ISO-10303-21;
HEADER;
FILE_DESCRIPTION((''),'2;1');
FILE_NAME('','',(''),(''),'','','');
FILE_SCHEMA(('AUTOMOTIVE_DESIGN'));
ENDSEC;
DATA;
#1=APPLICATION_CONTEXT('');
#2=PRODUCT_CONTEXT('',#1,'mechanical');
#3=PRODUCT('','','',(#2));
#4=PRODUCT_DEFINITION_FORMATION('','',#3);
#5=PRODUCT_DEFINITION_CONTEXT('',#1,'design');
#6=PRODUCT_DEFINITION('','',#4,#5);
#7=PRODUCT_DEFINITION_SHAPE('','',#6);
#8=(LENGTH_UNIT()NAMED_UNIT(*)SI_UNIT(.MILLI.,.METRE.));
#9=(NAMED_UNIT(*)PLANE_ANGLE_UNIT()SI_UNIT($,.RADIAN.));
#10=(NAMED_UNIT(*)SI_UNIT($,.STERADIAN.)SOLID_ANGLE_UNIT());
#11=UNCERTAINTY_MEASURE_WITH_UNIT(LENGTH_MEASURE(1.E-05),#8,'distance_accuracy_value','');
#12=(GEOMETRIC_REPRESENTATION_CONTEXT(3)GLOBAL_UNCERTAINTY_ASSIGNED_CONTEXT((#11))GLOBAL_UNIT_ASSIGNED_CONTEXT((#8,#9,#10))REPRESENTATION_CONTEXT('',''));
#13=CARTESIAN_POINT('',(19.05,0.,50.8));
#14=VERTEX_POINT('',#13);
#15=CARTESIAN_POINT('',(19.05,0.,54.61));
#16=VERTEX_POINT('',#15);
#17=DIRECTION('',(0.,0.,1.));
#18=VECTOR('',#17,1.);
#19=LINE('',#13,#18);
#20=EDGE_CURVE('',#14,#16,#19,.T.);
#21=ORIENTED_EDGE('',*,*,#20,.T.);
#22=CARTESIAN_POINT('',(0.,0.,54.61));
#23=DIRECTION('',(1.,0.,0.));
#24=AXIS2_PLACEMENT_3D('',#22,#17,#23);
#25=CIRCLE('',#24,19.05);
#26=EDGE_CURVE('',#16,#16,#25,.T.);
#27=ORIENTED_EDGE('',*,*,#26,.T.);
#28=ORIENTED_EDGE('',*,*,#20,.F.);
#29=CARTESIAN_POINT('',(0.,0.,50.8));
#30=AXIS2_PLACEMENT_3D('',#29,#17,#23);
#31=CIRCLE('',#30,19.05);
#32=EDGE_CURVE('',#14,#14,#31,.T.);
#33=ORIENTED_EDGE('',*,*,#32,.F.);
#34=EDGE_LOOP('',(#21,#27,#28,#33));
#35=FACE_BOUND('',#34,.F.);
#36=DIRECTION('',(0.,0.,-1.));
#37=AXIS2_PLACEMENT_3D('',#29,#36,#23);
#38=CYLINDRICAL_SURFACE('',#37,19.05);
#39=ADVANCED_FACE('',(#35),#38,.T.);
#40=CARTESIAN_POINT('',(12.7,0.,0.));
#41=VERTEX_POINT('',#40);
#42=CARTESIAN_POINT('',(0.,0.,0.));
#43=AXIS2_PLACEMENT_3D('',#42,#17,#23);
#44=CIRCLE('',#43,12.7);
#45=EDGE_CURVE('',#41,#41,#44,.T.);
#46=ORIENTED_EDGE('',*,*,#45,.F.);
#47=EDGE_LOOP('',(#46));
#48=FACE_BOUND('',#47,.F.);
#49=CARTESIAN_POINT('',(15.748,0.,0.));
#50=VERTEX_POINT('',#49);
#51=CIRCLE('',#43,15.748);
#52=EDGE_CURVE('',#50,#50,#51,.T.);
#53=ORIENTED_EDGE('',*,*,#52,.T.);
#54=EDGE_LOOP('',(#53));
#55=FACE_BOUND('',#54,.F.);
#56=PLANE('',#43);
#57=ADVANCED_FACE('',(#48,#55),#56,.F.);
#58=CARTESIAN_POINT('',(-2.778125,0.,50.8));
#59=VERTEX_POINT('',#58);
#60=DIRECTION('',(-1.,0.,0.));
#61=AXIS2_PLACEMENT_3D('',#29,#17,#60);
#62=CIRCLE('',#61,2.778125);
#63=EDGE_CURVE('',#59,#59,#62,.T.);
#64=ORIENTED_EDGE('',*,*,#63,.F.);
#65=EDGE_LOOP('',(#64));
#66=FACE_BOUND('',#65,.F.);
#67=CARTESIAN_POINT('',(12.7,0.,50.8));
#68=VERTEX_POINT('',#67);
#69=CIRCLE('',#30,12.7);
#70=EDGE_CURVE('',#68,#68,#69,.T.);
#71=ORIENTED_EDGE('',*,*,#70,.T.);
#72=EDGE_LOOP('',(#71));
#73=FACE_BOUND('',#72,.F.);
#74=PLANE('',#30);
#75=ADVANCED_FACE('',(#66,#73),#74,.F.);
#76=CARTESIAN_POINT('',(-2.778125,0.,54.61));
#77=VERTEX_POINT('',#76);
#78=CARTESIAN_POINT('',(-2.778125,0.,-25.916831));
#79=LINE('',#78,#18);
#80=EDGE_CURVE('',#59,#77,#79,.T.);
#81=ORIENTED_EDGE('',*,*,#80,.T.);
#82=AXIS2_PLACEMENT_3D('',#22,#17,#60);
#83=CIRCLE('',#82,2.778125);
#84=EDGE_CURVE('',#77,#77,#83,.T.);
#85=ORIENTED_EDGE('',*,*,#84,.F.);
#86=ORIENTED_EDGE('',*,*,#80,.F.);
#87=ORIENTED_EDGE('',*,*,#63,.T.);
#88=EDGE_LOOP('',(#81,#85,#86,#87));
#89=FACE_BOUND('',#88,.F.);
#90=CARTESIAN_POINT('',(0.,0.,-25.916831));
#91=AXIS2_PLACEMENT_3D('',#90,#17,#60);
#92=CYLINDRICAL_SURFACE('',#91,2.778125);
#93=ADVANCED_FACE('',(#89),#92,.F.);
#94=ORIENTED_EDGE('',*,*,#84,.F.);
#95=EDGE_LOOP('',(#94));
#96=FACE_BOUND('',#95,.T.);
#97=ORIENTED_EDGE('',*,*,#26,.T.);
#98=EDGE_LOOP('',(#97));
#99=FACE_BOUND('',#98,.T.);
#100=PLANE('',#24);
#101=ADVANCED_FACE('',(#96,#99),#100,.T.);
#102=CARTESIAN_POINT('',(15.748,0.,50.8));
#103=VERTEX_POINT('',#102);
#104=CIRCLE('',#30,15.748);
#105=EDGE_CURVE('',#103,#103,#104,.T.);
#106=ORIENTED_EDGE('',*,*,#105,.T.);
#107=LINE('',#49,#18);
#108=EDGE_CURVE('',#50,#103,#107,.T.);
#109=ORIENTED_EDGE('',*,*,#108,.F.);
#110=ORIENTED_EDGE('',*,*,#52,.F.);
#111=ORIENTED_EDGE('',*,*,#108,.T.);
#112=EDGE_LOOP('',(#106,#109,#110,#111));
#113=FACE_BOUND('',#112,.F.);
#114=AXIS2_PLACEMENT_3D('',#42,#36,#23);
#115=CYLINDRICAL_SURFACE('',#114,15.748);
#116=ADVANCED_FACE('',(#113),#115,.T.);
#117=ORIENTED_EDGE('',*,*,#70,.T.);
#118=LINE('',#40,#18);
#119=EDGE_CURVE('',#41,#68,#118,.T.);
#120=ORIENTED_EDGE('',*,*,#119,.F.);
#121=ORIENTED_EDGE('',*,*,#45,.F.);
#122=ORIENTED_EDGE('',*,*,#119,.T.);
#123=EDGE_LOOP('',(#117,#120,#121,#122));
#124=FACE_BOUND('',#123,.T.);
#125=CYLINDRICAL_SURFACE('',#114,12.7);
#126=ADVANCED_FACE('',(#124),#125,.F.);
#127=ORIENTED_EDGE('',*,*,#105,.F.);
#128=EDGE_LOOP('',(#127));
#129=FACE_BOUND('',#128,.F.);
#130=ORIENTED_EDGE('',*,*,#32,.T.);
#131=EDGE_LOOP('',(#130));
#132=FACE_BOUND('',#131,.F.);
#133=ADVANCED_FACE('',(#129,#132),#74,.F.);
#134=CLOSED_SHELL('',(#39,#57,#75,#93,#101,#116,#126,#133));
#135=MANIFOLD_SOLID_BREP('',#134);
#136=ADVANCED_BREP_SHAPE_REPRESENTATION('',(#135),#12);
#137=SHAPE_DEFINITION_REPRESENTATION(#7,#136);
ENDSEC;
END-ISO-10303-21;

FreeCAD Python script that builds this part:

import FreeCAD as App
import Part
import Sketcher
from FreeCAD import Vector
Q = App.Units.Quantity

doc = App.newDocument("Part")
body = doc.addObject("PartDesign::Body", "Body")

# Sketch on XY plane
sketch1 = body.newObject("Sketcher::SketchObject", "Sketch")
sketch1.AttachmentSupport = (doc.getObject("XY_Plane"), [""])
sketch1.MapMode = "FlatFace"
sketch1.addGeometry(Part.Circle(Vector(0, 0, 0), Vector(0, 0, 1), 15.748), False)
sketch1.addGeometry(Part.Circle(Vector(0, 0, 0), Vector(0, 0, 1), 12.7), False)
sketch1.addConstraint(Sketcher.Constraint("Coincident", 0, 3, -1, 1))
sketch1.addConstraint(Sketcher.Constraint("Coincident", 1, 3, -1, 1))
sketch1.addConstraint(Sketcher.Constraint("Diameter", 1, Q("1 in")))
sketch1.addConstraint(Sketcher.Constraint("Diameter", 0, Q("1.24 in")))
pad1 = body.newObject("PartDesign::Pad", "Pad")
pad1.Profile = sketch1
pad1.Length = Q("2 in")

# Sketch on XY plane
sketch2 = body.newObject("Sketcher::SketchObject", "Sketch001")
sketch2.AttachmentSupport = (doc.getObject("XY_Plane"), [""])
sketch2.MapMode = "FlatFace"
sketch2.AttachmentOffset = App.Placement(Vector(0, 0, 2 * 25.4), App.Rotation())
sketch2.addGeometry(Part.Circle(Vector(0, 0, 0), Vector(0, 0, 1), 19.05), False)
sketch2.addConstraint(Sketcher.Constraint("Coincident", 0, 3, -1, 1))
sketch2.addConstraint(Sketcher.Constraint("Diameter", 0, Q("1.5 in")))
pad2 = body.newObject("PartDesign::Pad", "Pad001")
pad2.Profile = sketch2
pad2.Length = Q("0.15 in")

# Sketch on XY plane
sketch3 = body.newObject("Sketcher::SketchObject", "Sketch002")
sketch3.AttachmentSupport = (doc.getObject("XY_Plane"), [""])
sketch3.MapMode = "FlatFace"
sketch3.AttachmentOffset = App.Placement(Vector(0, 0, 2 * 25.4), App.Rotation())
sketch3.addGeometry(Part.Circle(Vector(0, 0, 0), Vector(0, 0, 1), 2.778125), False)
sketch3.addConstraint(Sketcher.Constraint("Coincident", 0, 3, -1, 1))
sketch3.addConstraint(Sketcher.Constraint("Diameter", 0, Q("0.21875 in")))
doc.recompute()
hole = body.newObject("PartDesign::Hole", "Hole")
hole.Profile = sketch3
hole.ThreadType = "None"
hole.Diameter = Q("0.21875 in")
hole.DepthType = "ThroughAll"
hole.Reversed = True

doc.recompute()
